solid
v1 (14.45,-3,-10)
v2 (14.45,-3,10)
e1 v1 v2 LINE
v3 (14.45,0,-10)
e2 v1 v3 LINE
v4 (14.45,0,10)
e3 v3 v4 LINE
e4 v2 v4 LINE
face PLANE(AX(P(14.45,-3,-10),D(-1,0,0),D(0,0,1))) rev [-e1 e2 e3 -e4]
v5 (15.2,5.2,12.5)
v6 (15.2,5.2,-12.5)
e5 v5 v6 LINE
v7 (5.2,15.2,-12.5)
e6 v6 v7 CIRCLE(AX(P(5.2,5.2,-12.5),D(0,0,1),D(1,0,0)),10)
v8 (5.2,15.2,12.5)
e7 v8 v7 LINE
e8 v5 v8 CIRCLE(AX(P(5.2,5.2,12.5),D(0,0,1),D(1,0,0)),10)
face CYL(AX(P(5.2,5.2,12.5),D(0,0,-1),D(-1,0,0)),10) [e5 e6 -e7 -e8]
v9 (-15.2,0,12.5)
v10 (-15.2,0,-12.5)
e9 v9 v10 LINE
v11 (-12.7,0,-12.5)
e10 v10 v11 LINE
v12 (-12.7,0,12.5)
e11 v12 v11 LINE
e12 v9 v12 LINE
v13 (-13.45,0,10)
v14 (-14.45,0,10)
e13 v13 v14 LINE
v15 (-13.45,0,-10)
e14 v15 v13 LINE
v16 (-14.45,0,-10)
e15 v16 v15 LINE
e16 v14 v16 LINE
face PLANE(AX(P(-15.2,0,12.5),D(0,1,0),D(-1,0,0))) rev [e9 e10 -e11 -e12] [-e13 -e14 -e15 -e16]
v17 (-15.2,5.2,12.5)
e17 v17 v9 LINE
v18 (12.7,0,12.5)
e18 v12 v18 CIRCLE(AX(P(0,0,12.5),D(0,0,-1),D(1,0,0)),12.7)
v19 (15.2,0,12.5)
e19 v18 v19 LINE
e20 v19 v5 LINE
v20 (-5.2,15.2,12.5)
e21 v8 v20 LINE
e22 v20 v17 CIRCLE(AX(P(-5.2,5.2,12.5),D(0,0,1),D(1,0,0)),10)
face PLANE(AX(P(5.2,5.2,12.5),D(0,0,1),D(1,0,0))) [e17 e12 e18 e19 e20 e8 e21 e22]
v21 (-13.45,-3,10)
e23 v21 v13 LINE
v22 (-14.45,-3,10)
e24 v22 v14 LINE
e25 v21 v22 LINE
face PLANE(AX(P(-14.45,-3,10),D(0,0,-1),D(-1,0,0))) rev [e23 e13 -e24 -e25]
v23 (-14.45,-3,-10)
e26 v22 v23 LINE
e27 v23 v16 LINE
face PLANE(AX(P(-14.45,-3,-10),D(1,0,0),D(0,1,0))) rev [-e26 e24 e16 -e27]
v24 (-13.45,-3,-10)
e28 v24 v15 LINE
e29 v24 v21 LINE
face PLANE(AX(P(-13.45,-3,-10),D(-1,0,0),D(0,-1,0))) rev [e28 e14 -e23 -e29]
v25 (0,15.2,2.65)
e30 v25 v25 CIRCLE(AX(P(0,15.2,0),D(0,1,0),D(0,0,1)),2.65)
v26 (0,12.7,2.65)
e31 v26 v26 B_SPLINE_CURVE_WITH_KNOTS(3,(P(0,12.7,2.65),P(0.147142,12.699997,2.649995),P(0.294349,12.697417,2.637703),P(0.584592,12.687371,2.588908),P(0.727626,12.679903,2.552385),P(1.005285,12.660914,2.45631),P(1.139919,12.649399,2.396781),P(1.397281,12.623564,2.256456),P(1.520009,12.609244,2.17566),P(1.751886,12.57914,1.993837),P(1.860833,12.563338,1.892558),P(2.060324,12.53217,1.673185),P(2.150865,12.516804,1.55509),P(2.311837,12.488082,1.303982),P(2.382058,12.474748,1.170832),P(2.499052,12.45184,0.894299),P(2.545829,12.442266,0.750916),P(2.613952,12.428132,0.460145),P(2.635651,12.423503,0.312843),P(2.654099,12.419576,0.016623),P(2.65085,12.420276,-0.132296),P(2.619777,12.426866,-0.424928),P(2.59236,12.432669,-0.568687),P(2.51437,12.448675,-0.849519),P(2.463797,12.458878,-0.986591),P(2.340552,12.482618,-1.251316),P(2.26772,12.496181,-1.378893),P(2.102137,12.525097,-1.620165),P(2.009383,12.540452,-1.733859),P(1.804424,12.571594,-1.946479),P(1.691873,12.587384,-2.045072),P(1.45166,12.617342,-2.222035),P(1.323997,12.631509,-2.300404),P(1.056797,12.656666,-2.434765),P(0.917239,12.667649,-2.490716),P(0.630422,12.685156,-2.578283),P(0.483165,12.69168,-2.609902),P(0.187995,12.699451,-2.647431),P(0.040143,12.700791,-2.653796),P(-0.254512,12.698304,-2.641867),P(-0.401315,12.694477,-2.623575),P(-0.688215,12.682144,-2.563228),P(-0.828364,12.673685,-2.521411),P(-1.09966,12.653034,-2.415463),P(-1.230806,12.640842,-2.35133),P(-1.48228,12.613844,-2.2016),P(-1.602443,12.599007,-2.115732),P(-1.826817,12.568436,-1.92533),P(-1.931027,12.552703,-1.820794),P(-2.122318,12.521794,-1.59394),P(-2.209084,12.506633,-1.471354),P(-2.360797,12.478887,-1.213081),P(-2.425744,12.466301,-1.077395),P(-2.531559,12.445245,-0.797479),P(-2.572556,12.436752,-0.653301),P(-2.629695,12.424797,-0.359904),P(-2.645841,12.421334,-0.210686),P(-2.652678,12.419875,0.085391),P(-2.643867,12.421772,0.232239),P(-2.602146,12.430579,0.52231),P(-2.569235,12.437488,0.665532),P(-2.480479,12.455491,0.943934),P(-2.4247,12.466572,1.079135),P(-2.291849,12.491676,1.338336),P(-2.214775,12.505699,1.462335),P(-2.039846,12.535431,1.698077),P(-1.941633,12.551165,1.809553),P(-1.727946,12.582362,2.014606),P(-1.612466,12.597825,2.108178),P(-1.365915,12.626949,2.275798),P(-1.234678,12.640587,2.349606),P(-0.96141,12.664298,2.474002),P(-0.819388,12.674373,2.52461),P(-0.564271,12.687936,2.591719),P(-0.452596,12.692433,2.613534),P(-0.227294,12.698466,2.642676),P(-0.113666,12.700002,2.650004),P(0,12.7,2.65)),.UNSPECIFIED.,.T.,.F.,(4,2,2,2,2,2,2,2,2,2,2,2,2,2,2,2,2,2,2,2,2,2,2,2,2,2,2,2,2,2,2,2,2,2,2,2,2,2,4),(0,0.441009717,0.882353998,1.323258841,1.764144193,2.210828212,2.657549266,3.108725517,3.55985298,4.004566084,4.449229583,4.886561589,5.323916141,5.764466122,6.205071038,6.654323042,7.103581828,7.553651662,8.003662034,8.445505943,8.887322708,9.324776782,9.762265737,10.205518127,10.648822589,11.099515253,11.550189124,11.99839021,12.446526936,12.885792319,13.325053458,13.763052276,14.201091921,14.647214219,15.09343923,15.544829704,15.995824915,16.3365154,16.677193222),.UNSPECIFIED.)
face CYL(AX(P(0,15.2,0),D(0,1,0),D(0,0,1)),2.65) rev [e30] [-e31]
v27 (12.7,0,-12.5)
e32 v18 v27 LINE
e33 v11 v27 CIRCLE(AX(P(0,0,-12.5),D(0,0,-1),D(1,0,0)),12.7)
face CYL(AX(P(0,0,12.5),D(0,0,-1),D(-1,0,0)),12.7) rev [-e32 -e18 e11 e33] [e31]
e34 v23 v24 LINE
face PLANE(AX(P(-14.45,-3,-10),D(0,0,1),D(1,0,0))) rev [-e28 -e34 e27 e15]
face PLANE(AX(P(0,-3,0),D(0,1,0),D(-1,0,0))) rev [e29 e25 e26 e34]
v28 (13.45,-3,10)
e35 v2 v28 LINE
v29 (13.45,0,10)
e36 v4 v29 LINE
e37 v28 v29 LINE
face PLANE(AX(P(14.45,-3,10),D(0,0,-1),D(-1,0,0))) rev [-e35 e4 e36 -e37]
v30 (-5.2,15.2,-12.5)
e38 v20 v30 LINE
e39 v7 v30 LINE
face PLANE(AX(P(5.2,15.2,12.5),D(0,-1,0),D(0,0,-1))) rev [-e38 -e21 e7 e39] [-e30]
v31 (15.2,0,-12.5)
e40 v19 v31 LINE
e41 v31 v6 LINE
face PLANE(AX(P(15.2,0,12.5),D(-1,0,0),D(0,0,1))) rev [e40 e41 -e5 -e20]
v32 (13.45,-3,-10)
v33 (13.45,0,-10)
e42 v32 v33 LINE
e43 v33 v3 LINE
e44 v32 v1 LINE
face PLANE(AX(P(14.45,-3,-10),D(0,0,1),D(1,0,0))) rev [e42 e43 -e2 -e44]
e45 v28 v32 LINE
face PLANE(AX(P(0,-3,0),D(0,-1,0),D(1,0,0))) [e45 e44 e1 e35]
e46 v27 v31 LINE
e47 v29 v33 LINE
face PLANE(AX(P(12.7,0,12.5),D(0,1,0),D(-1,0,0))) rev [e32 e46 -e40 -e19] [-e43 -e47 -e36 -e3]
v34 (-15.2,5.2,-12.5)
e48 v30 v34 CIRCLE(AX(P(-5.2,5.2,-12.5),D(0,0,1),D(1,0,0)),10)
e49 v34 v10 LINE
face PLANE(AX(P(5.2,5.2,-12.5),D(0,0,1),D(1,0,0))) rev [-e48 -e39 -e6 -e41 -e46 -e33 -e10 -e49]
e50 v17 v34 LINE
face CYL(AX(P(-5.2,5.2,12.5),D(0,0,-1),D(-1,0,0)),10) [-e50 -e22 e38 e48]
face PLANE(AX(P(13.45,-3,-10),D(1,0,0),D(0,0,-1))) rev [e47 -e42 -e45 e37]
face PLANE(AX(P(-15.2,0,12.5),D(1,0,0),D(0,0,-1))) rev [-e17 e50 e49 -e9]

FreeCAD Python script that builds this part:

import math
import FreeCAD as App
import Part
import Sketcher

doc = App.newDocument("Part")
params = doc.addObject("Spreadsheet::Sheet", "Params")
for row, (alias, value) in enumerate([
    ("sketch1_radius", "10 mm"),
    ("sketch1_radius2", "12.7 mm"),
    ("sketch1_width", "2.5 mm"),
    ("sketch1_height", "5.2 mm"),
    ("pad1_length", "25 mm"),
    ("sketch2_diameter", "5.3 mm"),
    ("hole_diameter", "5.3 mm"),
    ("sketch3_width", "1 mm"),
    ("sketch3_height", "20 mm"),
    ("pad2_length", "3 mm"),
], start=1):
    params.set(f"A{row}", alias)
    params.set(f"B{row}", "=" + value)
    params.setAlias(f"B{row}", alias)

body = doc.addObject("PartDesign::Body", "Body")

sketch1 = body.newObject("Sketcher::SketchObject", "Sketch")
sketch1.AttachmentSupport = (doc.getObject("XY_Plane"), [""])
sketch1.MapMode = "FlatFace"
sketch1.addGeometry([
    Part.LineSegment(App.Vector(-15.2, 0, 0), App.Vector(-12.7, 0, 0)),
    Part.ArcOfCircle(Part.Circle(App.Vector(0, 0, 0), App.Vector(0, 0, 1), 12.7), math.radians(0), math.radians(180)),
    Part.LineSegment(App.Vector(12.7, 0, 0), App.Vector(15.2, 0, 0)),
    Part.LineSegment(App.Vector(15.2, 0, 0), App.Vector(15.2, 5.2, 0)),
    Part.ArcOfCircle(Part.Circle(App.Vector(5.2, 5.2, 0), App.Vector(0, 0, 1), 10), math.radians(0), math.radians(90)),
    Part.LineSegment(App.Vector(5.2, 15.2, 0), App.Vector(-5.2, 15.2, 0)),
    Part.ArcOfCircle(Part.Circle(App.Vector(-5.2, 5.2, 0), App.Vector(0, 0, 1), 10), math.radians(90), math.radians(180)),
    Part.LineSegment(App.Vector(-15.2, 5.2, 0), App.Vector(-15.2, 0, 0)),
], False)
sketch1.addConstraint([
    Sketcher.Constraint("Coincident", 0, 2, 1, 2),
    Sketcher.Constraint("Coincident", 1, 1, 2, 1),
    Sketcher.Constraint("Coincident", 2, 2, 3, 1),
    Sketcher.Constraint("Tangent", 3, 2, 4, 1),
    Sketcher.Constraint("Tangent", 4, 2, 5, 1),
    Sketcher.Constraint("Tangent", 5, 2, 6, 1),
    Sketcher.Constraint("Tangent", 6, 2, 7, 1),
    Sketcher.Constraint("Coincident", 7, 2, 0, 1),
    Sketcher.Constraint("Horizontal", 0),
    Sketcher.Constraint("Horizontal", 2),
    Sketcher.Constraint("Vertical", 3),
    Sketcher.Constraint("Horizontal", 5),
    Sketcher.Constraint("Vertical", 7),
    Sketcher.Constraint("Coincident", 1, 3, -1, 1),
    Sketcher.Constraint("Equal", 4, 6),
    Sketcher.Constraint("Symmetric", 2, 2, 7, 2, -1, 1),
    Sketcher.Constraint("PointOnObject", 0, 2, -1),
    Sketcher.Constraint("Radius", 4, 10.0),
    Sketcher.Constraint("Radius", 1, 12.7),
    Sketcher.Constraint("DistanceX", 0, 1, 0, 2, 2.5),
    Sketcher.Constraint("DistanceY", 3, 1, 3, 2, 5.2),
])
sketch1.setExpression("Constraints[17]", "Params.sketch1_radius")
sketch1.setExpression("Constraints[18]", "Params.sketch1_radius2")
sketch1.setExpression("Constraints[19]", "Params.sketch1_width")
sketch1.setExpression("Constraints[20]", "Params.sketch1_height")
pad1 = body.newObject("PartDesign::Pad", "Pad")
pad1.Profile = sketch1
pad1.setExpression("Length", "Params.pad1_length")
pad1.Midplane = True

sketch2 = body.newObject("Sketcher::SketchObject", "Sketch001")
sketch2.AttachmentSupport = (doc.getObject("XZ_Plane"), [""])
sketch2.MapMode = "FlatFace"
sketch2.AttachmentOffset = App.Placement(App.Vector(0, 0, -15.2), App.Rotation())
sketch2.addGeometry(Part.Circle(App.Vector(0, 0, 0), App.Vector(0, 0, 1), 2.6), False)
sketch2.addConstraint([
    Sketcher.Constraint("Coincident", 0, 3, -1, 1),
    Sketcher.Constraint("Diameter", 0, 5.3),
])
sketch2.setExpression("Constraints[1]", "Params.sketch2_diameter")
doc.recompute()
hole = body.newObject("PartDesign::Hole", "Hole")
hole.Profile = sketch2
hole.ThreadType = "None"
hole.setExpression("Diameter", "Params.hole_diameter")
hole.DepthType = "ThroughAll"
hole.Reversed = True

sketch3 = body.newObject("Sketcher::SketchObject", "Sketch002")
sketch3.AttachmentSupport = (doc.getObject("XZ_Plane"), [""])
sketch3.MapMode = "FlatFace"
sketch3.addGeometry([
    Part.LineSegment(App.Vector(-14.4, 10, 0), App.Vector(-14.4, -10, 0)),
    Part.LineSegment(App.Vector(-14.4, -10, 0), App.Vector(-13.4, -10, 0)),
    Part.LineSegment(App.Vector(-13.4, -10, 0), App.Vector(-13.4, 10, 0)),
    Part.LineSegment(App.Vector(-13.4, 10, 0), App.Vector(-14.4, 10, 0)),
    Part.LineSegment(App.Vector(13.4, 10, 0), App.Vector(13.4, -10, 0)),
    Part.LineSegment(App.Vector(13.4, -10, 0), App.Vector(14.4, -10, 0)),
    Part.LineSegment(App.Vector(14.4, -10, 0), App.Vector(14.4, 10, 0)),
    Part.LineSegment(App.Vector(14.4, 10, 0), App.Vector(13.4, 10, 0)),
], False)
sketch3.addConstraint([
    Sketcher.Constraint("Coincident", 0, 2, 1, 1),
    Sketcher.Constraint("Coincident", 1, 2, 2, 1),
    Sketcher.Constraint("Coincident", 2, 2, 3, 1),
    Sketcher.Constraint("Coincident", 3, 2, 0, 1),
    Sketcher.Constraint("Coincident", 4, 2, 5, 1),
    Sketcher.Constraint("Coincident", 5, 2, 6, 1),
    Sketcher.Constraint("Coincident", 6, 2, 7, 1),
    Sketcher.Constraint("Coincident", 7, 2, 4, 1),
    Sketcher.Constraint("Vertical", 0),
    Sketcher.Constraint("Horizontal", 1),
    Sketcher.Constraint("Vertical", 2),
    Sketcher.Constraint("Horizontal", 3),
    Sketcher.Constraint("Vertical", 4),
    Sketcher.Constraint("Horizontal", 5),
    Sketcher.Constraint("Vertical", 6),
    Sketcher.Constraint("Horizontal", 7),
    Sketcher.Constraint("Symmetric", 2, 2, 4, 2, -1, 1),
    Sketcher.Constraint("Symmetric", 0, 2, 6, 2, -1, 1),
    Sketcher.Constraint("Horizontal", 1, 2, 4, 2),
    Sketcher.Constraint("DistanceX", 1, 1, 1, 2, 1.0),
    Sketcher.Constraint("DistanceY", 0, 2, 0, 1, 20.0),
    Sketcher.Constraint("DistanceX", 1, 2, 4, 2, 26.9),
])
sketch3.setExpression("Constraints[19]", "Params.sketch3_width")
sketch3.setExpression("Constraints[20]", "Params.sketch3_height")
pad2 = body.newObject("PartDesign::Pad", "Pad001")
pad2.Profile = sketch3
pad2.setExpression("Length", "Params.pad2_length")

doc.recompute()
